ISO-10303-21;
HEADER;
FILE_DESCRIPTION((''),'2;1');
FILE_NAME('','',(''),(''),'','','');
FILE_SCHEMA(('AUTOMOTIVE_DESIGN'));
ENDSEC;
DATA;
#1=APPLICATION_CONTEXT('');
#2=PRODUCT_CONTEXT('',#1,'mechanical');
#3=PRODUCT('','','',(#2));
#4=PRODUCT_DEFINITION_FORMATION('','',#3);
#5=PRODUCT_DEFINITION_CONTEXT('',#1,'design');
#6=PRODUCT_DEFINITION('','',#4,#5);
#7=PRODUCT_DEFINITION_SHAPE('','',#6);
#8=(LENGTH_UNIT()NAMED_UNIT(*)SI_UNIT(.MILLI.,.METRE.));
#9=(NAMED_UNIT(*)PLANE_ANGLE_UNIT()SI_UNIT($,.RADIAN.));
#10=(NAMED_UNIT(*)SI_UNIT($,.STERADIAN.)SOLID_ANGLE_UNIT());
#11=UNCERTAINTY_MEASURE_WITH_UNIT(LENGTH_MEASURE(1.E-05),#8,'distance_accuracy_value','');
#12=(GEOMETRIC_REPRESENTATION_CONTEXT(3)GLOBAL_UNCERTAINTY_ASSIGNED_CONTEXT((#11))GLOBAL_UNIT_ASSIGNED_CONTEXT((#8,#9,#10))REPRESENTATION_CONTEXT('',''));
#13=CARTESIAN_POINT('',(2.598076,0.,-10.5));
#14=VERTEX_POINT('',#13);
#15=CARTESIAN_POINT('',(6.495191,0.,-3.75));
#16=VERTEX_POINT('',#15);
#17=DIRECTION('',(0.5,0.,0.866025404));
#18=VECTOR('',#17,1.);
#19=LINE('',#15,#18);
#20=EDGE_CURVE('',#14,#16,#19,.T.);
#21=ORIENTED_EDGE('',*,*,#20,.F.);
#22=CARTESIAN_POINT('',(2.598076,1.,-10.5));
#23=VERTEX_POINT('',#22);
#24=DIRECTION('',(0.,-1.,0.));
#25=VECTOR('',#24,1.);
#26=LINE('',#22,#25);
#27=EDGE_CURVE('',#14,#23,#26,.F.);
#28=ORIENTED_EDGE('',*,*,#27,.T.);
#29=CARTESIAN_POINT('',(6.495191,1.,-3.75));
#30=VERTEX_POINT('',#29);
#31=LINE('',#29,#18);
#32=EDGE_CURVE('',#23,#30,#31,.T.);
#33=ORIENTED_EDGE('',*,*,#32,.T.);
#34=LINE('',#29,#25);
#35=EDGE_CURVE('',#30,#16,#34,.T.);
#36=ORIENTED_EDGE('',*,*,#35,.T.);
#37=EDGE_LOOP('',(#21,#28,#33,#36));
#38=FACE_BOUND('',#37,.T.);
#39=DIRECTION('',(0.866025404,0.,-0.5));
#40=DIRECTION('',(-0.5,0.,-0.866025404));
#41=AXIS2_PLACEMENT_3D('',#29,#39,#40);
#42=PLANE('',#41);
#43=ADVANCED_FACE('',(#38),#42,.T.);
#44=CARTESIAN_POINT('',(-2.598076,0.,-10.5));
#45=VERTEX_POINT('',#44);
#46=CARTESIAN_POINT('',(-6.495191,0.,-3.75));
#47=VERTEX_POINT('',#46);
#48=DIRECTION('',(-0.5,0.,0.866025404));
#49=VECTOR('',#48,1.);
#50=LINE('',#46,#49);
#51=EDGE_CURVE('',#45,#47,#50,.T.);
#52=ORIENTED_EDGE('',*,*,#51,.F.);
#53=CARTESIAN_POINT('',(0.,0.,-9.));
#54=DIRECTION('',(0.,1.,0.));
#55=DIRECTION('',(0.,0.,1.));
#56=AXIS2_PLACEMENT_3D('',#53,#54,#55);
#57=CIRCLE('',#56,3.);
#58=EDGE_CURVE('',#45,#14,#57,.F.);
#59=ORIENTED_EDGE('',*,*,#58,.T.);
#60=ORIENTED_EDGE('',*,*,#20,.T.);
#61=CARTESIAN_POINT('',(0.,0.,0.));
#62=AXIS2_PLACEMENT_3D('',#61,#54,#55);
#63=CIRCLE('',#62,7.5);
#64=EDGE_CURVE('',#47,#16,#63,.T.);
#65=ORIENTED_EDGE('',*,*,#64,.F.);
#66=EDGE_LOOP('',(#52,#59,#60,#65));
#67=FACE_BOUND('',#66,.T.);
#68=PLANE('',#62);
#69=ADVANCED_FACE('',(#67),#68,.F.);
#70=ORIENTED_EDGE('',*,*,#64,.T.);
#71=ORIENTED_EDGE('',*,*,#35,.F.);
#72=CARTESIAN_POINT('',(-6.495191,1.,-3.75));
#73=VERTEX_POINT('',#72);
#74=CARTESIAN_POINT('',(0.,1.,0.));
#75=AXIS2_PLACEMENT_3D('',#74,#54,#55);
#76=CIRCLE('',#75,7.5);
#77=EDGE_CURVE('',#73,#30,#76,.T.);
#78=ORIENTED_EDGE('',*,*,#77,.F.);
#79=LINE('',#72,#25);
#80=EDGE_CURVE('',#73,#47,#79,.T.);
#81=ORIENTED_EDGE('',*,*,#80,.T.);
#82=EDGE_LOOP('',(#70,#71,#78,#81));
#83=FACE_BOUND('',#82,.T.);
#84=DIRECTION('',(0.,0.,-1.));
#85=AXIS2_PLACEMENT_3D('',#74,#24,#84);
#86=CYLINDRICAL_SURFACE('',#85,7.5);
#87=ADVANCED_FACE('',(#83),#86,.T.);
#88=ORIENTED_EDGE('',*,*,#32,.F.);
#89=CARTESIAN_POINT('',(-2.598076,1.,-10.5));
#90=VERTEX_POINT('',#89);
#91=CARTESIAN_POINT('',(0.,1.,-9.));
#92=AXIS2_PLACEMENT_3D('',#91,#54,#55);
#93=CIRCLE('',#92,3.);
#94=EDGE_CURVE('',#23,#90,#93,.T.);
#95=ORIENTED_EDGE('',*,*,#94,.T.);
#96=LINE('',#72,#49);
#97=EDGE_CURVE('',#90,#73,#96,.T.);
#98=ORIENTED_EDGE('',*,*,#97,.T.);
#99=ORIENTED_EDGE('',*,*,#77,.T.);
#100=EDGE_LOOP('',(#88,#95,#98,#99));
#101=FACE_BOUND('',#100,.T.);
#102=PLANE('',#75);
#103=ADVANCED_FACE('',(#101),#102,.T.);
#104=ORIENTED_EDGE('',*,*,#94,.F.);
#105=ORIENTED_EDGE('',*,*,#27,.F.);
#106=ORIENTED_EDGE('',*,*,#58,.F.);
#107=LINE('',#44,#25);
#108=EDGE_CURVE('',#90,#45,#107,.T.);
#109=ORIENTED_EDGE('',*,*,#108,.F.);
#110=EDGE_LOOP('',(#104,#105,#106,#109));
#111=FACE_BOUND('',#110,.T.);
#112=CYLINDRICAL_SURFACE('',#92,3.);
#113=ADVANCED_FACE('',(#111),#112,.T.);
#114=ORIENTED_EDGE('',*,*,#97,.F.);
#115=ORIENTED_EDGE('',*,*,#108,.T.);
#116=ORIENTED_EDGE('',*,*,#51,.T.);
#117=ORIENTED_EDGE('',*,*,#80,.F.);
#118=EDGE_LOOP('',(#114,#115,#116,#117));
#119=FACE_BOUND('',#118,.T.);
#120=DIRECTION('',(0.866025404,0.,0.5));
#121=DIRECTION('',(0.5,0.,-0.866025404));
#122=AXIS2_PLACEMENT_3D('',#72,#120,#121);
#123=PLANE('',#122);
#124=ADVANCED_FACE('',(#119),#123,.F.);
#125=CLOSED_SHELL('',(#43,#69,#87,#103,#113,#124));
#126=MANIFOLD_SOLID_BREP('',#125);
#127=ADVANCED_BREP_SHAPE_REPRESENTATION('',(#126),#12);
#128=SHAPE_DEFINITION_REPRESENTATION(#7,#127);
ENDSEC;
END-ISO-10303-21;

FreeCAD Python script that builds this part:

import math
import FreeCAD as App
import Part
import Sketcher
Q = App.Units.Quantity


def edges_at(feature, points):
    """Names of the edges that pass closest to the given points."""
    edges = feature.Shape.Edges
    near = lambda p: min(range(len(edges)), key=lambda i: edges[i].distToShape(Part.Vertex(*p))[0])
    return sorted({f"Edge{near(p) + 1}" for p in points})

doc = App.newDocument("Part")
body = doc.addObject("PartDesign::Body", "Body")

sketch1 = body.newObject("Sketcher::SketchObject", "Sketch")
sketch1.AttachmentSupport = (doc.getObject("XZ_Plane"), [""])
sketch1.MapMode = "FlatFace"
sketch1.addGeometry(Part.LineSegment(App.Vector(6, -4, 0), App.Vector(0, -15, 0)), False)
sketch1.addGeometry(Part.LineSegment(App.Vector(0, -15, 0), App.Vector(-6, -4, 0)), False)
sketch1.addGeometry(Part.ArcOfCircle(Part.Circle(App.Vector(0, 0, 0), App.Vector(0, 0, 1), 8), math.radians(-30), math.radians(210)), False)
sketch1.addConstraint(Sketcher.Constraint("Coincident", 0, 2, 1, 1))
sketch1.addConstraint(Sketcher.Constraint("Tangent", 1, 2, 2, 2))
sketch1.addConstraint(Sketcher.Constraint("Tangent", 2, 1, 0, 1))
sketch1.addConstraint(Sketcher.Constraint("Coincident", 2, 3, -1, 1))
sketch1.addConstraint(Sketcher.Constraint("PointOnObject", 0, 2, -2))
sketch1.addConstraint(Sketcher.Constraint("Radius", 2, 7.5))
sketch1.addConstraint(Sketcher.Constraint("Angle", 0, Q("-120 deg")))
pad1 = body.newObject("PartDesign::Pad", "Pad")
pad1.Profile = sketch1
pad1.Length = 1
pad1.Reversed = True
doc.recompute()

fillet = body.newObject("PartDesign::Fillet", "Fillet")
fillet.Base = (pad1, edges_at(pad1, [(0, 0.5, -15)]))
fillet.Radius = 3

doc.recompute()
